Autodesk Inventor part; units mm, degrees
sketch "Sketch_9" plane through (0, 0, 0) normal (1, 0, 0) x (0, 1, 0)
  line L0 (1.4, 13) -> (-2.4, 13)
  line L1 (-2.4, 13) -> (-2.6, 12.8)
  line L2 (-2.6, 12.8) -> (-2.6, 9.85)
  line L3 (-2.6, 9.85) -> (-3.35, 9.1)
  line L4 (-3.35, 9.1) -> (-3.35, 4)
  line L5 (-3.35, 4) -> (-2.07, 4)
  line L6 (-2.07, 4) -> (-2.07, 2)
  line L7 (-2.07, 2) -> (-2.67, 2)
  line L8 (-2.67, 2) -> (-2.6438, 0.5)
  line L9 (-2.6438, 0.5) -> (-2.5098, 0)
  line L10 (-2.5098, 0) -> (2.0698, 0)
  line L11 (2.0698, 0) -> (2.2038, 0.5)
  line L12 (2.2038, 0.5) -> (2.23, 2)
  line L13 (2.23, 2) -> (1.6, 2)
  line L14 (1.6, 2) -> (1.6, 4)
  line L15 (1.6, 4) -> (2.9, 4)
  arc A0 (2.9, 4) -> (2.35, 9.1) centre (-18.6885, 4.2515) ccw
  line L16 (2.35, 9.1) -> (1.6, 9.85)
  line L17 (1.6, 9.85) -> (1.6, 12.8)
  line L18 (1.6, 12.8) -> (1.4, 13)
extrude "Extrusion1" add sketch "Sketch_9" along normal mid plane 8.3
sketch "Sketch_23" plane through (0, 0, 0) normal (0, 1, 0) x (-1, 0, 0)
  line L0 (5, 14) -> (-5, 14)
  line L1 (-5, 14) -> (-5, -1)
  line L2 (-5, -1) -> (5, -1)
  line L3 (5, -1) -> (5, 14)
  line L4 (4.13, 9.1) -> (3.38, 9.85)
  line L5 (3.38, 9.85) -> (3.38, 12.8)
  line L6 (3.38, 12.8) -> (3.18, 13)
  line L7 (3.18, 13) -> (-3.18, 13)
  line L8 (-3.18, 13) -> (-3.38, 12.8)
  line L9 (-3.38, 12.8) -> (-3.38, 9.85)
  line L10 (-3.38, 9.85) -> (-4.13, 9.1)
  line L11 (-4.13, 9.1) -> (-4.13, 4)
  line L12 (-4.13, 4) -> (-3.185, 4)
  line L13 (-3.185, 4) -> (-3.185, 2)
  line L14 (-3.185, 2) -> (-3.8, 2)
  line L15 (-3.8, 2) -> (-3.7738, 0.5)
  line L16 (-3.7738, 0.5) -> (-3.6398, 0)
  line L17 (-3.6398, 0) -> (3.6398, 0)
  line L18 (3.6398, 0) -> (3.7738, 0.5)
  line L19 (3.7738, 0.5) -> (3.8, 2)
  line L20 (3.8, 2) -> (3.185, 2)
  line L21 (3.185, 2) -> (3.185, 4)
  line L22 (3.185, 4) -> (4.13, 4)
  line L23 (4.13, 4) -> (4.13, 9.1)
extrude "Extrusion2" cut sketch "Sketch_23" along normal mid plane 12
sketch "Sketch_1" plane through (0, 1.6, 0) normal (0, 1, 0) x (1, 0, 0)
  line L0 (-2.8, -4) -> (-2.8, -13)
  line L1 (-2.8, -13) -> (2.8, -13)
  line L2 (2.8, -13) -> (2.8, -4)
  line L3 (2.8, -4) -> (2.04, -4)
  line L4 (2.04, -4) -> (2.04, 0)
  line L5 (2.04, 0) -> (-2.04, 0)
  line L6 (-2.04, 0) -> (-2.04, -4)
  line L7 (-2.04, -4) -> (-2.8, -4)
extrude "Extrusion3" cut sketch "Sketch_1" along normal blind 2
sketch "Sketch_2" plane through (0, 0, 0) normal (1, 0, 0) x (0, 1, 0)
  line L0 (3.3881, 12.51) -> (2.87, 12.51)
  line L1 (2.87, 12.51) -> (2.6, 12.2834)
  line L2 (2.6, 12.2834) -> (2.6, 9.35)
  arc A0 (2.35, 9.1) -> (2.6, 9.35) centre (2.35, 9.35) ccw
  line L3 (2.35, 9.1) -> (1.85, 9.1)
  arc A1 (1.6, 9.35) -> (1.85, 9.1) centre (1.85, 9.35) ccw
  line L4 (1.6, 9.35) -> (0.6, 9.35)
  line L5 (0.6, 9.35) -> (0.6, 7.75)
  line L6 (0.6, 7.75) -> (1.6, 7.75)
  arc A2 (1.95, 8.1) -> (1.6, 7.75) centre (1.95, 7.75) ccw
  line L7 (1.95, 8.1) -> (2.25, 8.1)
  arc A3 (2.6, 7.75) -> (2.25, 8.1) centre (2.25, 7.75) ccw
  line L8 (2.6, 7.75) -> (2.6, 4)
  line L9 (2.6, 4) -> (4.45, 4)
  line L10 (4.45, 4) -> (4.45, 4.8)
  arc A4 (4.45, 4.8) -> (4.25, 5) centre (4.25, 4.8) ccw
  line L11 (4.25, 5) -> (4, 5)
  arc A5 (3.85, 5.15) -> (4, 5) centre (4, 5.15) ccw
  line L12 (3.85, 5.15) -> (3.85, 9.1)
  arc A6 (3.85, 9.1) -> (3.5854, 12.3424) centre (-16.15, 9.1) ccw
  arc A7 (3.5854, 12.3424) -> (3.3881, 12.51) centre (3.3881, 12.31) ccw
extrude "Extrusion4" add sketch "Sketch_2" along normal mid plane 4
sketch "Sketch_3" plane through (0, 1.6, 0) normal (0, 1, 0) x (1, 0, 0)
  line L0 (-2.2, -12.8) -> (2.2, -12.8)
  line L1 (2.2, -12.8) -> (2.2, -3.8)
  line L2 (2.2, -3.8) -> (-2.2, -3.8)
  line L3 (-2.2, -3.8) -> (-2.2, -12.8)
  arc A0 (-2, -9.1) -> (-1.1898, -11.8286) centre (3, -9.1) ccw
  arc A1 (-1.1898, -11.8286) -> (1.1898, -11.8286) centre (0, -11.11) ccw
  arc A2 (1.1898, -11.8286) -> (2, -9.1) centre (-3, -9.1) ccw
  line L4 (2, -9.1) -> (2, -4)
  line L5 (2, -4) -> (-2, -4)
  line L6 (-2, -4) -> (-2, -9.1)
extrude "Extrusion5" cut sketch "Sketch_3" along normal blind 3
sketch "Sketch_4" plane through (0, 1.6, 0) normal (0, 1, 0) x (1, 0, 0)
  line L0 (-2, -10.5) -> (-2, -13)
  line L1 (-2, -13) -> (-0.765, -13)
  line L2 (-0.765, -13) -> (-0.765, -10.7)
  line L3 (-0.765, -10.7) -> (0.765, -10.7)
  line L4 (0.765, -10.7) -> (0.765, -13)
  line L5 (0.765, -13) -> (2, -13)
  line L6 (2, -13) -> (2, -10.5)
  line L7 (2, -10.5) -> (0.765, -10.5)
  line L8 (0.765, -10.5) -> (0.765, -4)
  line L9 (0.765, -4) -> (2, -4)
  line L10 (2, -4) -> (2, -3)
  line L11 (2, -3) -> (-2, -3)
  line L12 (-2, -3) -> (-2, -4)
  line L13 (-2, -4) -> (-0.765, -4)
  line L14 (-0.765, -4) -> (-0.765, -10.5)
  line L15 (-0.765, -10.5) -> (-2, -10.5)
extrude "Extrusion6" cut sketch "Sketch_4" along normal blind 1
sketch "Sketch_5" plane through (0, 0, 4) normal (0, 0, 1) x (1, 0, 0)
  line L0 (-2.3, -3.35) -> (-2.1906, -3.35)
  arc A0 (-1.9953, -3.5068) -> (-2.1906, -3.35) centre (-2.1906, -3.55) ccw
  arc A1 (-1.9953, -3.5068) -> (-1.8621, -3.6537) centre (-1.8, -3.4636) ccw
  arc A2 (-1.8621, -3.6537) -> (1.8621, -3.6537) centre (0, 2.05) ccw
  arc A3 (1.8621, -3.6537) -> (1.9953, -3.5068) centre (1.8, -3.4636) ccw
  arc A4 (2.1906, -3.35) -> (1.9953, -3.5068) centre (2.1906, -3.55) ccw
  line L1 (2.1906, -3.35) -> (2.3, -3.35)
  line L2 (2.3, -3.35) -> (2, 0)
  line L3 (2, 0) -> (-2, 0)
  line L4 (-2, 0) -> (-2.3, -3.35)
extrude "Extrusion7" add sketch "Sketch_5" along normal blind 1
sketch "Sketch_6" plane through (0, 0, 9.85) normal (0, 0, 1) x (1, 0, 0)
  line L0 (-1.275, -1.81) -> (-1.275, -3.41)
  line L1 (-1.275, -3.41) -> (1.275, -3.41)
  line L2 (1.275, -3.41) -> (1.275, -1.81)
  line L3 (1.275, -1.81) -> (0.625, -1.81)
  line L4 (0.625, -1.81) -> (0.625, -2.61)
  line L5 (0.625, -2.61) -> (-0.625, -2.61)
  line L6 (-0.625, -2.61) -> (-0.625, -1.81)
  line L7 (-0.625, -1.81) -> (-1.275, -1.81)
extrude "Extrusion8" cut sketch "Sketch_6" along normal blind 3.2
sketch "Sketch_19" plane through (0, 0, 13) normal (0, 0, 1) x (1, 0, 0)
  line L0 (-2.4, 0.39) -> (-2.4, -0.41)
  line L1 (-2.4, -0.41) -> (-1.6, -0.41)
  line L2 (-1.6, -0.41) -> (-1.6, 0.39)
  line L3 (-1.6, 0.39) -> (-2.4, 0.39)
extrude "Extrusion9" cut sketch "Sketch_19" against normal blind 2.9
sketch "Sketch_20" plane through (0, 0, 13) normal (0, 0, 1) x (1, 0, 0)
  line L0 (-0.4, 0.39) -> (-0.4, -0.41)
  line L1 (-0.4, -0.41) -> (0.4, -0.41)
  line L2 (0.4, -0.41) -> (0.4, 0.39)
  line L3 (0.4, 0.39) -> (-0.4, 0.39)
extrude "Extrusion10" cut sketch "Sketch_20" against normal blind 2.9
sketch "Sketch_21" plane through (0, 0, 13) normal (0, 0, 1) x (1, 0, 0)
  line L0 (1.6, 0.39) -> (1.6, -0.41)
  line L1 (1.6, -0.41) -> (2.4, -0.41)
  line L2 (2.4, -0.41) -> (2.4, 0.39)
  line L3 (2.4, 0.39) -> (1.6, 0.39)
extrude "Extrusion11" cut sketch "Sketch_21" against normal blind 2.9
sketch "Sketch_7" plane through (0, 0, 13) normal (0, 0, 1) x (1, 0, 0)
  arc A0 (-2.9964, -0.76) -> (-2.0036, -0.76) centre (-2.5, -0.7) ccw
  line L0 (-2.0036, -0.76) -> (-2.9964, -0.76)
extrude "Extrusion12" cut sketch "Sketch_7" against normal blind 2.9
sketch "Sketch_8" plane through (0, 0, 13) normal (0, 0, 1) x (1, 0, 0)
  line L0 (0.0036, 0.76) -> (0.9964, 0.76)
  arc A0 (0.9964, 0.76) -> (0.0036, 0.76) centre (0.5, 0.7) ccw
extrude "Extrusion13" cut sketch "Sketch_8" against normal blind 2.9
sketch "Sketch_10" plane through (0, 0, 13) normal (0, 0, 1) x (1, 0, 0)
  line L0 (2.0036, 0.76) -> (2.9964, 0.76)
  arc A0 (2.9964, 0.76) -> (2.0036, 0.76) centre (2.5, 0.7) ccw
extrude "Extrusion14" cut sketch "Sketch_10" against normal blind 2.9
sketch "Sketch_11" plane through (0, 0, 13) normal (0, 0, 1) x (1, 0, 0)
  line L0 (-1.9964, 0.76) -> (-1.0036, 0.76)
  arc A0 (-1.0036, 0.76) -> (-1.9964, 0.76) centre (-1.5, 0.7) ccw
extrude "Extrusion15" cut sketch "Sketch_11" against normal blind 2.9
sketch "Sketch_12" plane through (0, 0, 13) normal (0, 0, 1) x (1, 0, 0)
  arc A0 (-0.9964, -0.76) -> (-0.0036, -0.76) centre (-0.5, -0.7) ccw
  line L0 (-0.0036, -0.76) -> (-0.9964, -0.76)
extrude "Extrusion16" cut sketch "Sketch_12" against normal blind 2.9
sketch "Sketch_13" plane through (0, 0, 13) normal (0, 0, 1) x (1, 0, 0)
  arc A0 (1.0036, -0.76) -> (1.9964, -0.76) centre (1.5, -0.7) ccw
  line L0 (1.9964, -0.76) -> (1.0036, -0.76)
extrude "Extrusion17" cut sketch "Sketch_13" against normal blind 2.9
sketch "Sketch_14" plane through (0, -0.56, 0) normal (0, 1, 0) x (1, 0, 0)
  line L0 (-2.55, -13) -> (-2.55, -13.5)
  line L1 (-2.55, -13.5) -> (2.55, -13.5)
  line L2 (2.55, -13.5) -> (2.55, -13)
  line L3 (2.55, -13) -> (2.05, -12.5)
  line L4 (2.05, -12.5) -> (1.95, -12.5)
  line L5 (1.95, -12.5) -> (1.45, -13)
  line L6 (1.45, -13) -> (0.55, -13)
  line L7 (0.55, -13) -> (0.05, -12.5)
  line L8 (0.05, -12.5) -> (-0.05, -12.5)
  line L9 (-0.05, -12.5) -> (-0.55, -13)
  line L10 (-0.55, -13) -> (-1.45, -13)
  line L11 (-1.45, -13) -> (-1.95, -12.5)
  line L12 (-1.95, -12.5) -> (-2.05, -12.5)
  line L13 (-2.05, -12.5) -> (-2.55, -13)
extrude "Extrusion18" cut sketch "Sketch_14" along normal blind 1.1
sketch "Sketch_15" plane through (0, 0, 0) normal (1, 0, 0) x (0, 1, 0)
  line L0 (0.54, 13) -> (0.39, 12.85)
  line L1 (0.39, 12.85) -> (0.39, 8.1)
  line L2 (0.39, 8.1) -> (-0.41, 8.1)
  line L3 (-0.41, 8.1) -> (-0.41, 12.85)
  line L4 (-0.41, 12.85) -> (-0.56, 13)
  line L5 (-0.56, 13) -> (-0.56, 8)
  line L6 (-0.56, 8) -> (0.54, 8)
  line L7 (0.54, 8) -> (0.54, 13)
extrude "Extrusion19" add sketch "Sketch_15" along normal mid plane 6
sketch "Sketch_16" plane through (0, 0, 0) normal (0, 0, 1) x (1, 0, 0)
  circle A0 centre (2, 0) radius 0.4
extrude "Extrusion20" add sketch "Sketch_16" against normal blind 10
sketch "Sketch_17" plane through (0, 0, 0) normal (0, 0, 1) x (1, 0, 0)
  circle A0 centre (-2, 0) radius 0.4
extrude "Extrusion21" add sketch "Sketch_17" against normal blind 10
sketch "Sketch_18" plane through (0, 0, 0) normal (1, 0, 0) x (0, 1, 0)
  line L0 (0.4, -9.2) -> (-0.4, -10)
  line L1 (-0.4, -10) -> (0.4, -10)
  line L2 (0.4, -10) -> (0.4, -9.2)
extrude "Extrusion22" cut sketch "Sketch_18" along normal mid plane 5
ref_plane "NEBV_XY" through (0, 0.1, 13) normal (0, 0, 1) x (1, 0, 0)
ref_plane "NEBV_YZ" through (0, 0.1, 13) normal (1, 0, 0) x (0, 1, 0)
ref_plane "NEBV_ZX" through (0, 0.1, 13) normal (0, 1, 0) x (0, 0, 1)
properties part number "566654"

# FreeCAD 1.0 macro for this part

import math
import FreeCAD as App
import Part
import Sketcher

V = App.Vector
Q = App.Units.Quantity


def add_polygon(sketch, points):
    """Adds a closed chain of lines whose ends are joined by coincident constraints."""
    first, n = sketch.GeometryCount, len(points)
    for a, b in zip(points, points[1:] + points[:1]):
        sketch.addGeometry(Part.LineSegment(App.Vector(*a, 0), App.Vector(*b, 0)), False)
    for i in range(n):
        sketch.addConstraint(Sketcher.Constraint("Coincident", first + i, 2, first + (i + 1) % n, 1))

doc = App.newDocument("Part")
body = doc.addObject("PartDesign::Body", "Body")

# Sketch on YZ plane
sketch1 = body.newObject("Sketcher::SketchObject", "Sketch")
sketch1.AttachmentSupport = (doc.getObject("YZ_Plane"), [""])
sketch1.MapMode = "FlatFace"
sketch1.addGeometry([
    Part.LineSegment(V(1.6, 12.8, 0), V(1.4, 13, 0)),  # 0
    Part.LineSegment(V(1.4, 13, 0), V(-2.4, 13, 0)),  # 1
    Part.LineSegment(V(-2.4, 13, 0), V(-2.6, 12.8, 0)),  # 2
    Part.LineSegment(V(-2.6, 12.8, 0), V(-2.6, 9.85, 0)),  # 3
    Part.LineSegment(V(-2.6, 9.85, 0), V(-3.35, 9.1, 0)),  # 4
    Part.LineSegment(V(-3.35, 9.1, 0), V(-3.35, 4, 0)),  # 5
    Part.LineSegment(V(-3.35, 4, 0), V(-2.07, 4, 0)),  # 6
    Part.LineSegment(V(-2.07, 4, 0), V(-2.07, 2, 0)),  # 7
    Part.LineSegment(V(-2.07, 2, 0), V(-2.67, 2, 0)),  # 8
    Part.LineSegment(V(-2.67, 2, 0), V(-2.64, 0.5, 0)),  # 9
    Part.LineSegment(V(-2.64, 0.5, 0), V(-2.51, 0, 0)),  # 10
    Part.LineSegment(V(-2.51, 0, 0), V(2.07, 0, 0)),  # 11
    Part.LineSegment(V(2.07, 0, 0), V(2.2, 0.5, 0)),  # 12
    Part.LineSegment(V(2.2, 0.5, 0), V(2.23, 2, 0)),  # 13
    Part.LineSegment(V(2.23, 2, 0), V(1.6, 2, 0)),  # 14
    Part.LineSegment(V(1.6, 2, 0), V(1.6, 4, 0)),  # 15
    Part.LineSegment(V(1.6, 4, 0), V(2.9, 4, 0)),  # 16
    Part.ArcOfCircle(Part.Circle(V(-18.69, 4.25, 0), V(0, 0, 1), 21.59), math.radians(-0.67), math.radians(12.98)),  # 17
    Part.LineSegment(V(2.35, 9.1, 0), V(1.6, 9.85, 0)),  # 18
    Part.LineSegment(V(1.6, 9.85, 0), V(1.6, 12.8, 0)),  # 19
], False)
sketch1.addConstraint([
    Sketcher.Constraint("Coincident", 0, 2, 1, 1),
    Sketcher.Constraint("Coincident", 1, 2, 2, 1),
    Sketcher.Constraint("Coincident", 2, 2, 3, 1),
    Sketcher.Constraint("Coincident", 3, 2, 4, 1),
    Sketcher.Constraint("Coincident", 4, 2, 5, 1),
    Sketcher.Constraint("Coincident", 5, 2, 6, 1),
    Sketcher.Constraint("Coincident", 6, 2, 7, 1),
    Sketcher.Constraint("Coincident", 7, 2, 8, 1),
    Sketcher.Constraint("Coincident", 8, 2, 9, 1),
    Sketcher.Constraint("Coincident", 9, 2, 10, 1),
    Sketcher.Constraint("Coincident", 10, 2, 11, 1),
    Sketcher.Constraint("Coincident", 11, 2, 12, 1),
    Sketcher.Constraint("Coincident", 12, 2, 13, 1),
    Sketcher.Constraint("Coincident", 13, 2, 14, 1),
    Sketcher.Constraint("Coincident", 14, 2, 15, 1),
    Sketcher.Constraint("Coincident", 15, 2, 16, 1),
    Sketcher.Constraint("Coincident", 16, 2, 17, 1),
    Sketcher.Constraint("Coincident", 17, 2, 18, 1),
    Sketcher.Constraint("Coincident", 18, 2, 19, 1),
    Sketcher.Constraint("Coincident", 19, 2, 0, 1),
    Sketcher.Constraint("Horizontal", 1),
    Sketcher.Constraint("Vertical", 3),
    Sketcher.Constraint("Vertical", 5),
    Sketcher.Constraint("Horizontal", 6),
    Sketcher.Constraint("Vertical", 7),
    Sketcher.Constraint("Horizontal", 8),
    Sketcher.Constraint("Horizontal", 11),
    Sketcher.Constraint("Horizontal", 14),
    Sketcher.Constraint("Vertical", 15),
    Sketcher.Constraint("Horizontal", 16),
    Sketcher.Constraint("Vertical", 19),
    Sketcher.Constraint("PointOnObject", 10, 2, -1),
    Sketcher.Constraint("Perpendicular", 0, 2),
    Sketcher.Constraint("Parallel", 2, 4),
    Sketcher.Constraint("Perpendicular", 4, 18),
    Sketcher.Constraint("Horizontal", 9, 2, 12, 2),
    Sketcher.Constraint("Horizontal", 8, 2, 13, 2),
    Sketcher.Constraint("Horizontal", 6, 2, 15, 2),
    Sketcher.Constraint("Horizontal", 4, 2, 17, 2),
    Sketcher.Constraint("Horizontal", 3, 2, 18, 2),
    Sketcher.Constraint("Horizontal", 2, 2, 19, 2),
    Sketcher.Constraint("Vertical", 15, 2, 18, 2),
    Sketcher.Constraint("Equal", 0, 2),
    Sketcher.Constraint("Equal", 10, 12),
    Sketcher.Constraint("Equal", 9, 13),
    Sketcher.Constraint("DistanceY", 7, 2, 7, 1, 2.0),
    Sketcher.Constraint("Angle", 9, Q("-88.9993 deg")),
    Sketcher.Constraint("Radius", 17, 21.59),
    Sketcher.Constraint("DistanceX", 1, 2, 1, 1, 3.8),
    Sketcher.Constraint("DistanceX", 8, 2, 8, 1, 0.6),
    Sketcher.Constraint("DistanceX", 16, 1, 16, 2, 1.3),
    Sketcher.Constraint("DistanceY", 5, 2, 5, 1, 5.1),
    Sketcher.Constraint("DistanceY", -1, 1, 0, 2, 13.0),
    Sketcher.Constraint("DistanceY", -1, 1, 5, 2, 4.0),
    Sketcher.Constraint("DistanceX", 2, 2, 0, 2, 4.0),
    Sketcher.Constraint("DistanceX", 6, 1, 6, 2, 1.28),
    Sketcher.Constraint("DistanceX", 14, 2, 14, 1, 0.63),
    Sketcher.Constraint("DistanceY", 3, 2, 3, 1, 2.95),
    Sketcher.Constraint("DistanceX", -1, 1, 0, 2, 1.4),
    Sketcher.Constraint("DistanceY", -1, 1, 9, 2, 0.5),
    Sketcher.Constraint("DistanceX", 11, 1, 11, 2, 4.5796),
])
pad1 = body.newObject("PartDesign::Pad", "Pad")
pad1.Profile = sketch1
pad1.Length = 8.3
pad1.Midplane = True

# Sketch on XZ plane
sketch2 = body.newObject("Sketcher::SketchObject", "Sketch001")
sketch2.AttachmentSupport = (doc.getObject("XZ_Plane"), [""])
sketch2.MapMode = "FlatFace"
add_polygon(sketch2, [(-5, -1), (-5, 14), (5, 14), (5, -1)])  # lines 0-3
add_polygon(sketch2, [(-3.38, 9.85), (-4.13, 9.1), (-4.13, 4), (-3.19, 4), (-3.19, 2), (-3.8, 2), (-3.77, 0.5), (-3.64, 0), (3.64, 0), (3.77, 0.5), (3.8, 2), (3.19, 2), (3.19, 4), (4.13, 4), (4.13, 9.1), (3.38, 9.85), (3.38, 12.8), (3.18, 13), (-3.18, 13), (-3.38, 12.8)])  # lines 4-23
sketch2.addConstraint([
    Sketcher.Constraint("Vertical", 0),
    Sketcher.Constraint("Horizontal", 1),
    Sketcher.Constraint("Vertical", 2),
    Sketcher.Constraint("Horizontal", 3),
    Sketcher.Constraint("Vertical", 5),
    Sketcher.Constraint("Horizontal", 6),
    Sketcher.Constraint("Vertical", 7),
    Sketcher.Constraint("Horizontal", 8),
    Sketcher.Constraint("Horizontal", 11),
    Sketcher.Constraint("Horizontal", 14),
    Sketcher.Constraint("Vertical", 15),
    Sketcher.Constraint("Horizontal", 16),
    Sketcher.Constraint("Vertical", 17),
    Sketcher.Constraint("Vertical", 19),
    Sketcher.Constraint("Horizontal", 21),
    Sketcher.Constraint("Vertical", 23),
    Sketcher.Constraint("Symmetric", 10, 2, 11, 2, -1, 1),
    Sketcher.Constraint("Symmetric", 9, 2, 12, 2, -2),
    Sketcher.Constraint("Symmetric", 8, 2, 13, 2, -2),
    Sketcher.Constraint("Symmetric", 6, 2, 15, 2, -2),
    Sketcher.Constraint("Symmetric", 4, 2, 17, 2, -2),
    Sketcher.Constraint("Symmetric", 19, 2, 22, 2, -2),
    Sketcher.Constraint("Perpendicular", 4, 18),
    Sketcher.Constraint("Parallel", 18, 20),
    Sketcher.Constraint("Perpendicular", 20, 22),
    Sketcher.Constraint("Horizontal", 18, 2, 23, 2),
    Sketcher.Constraint("DistanceX", 1, 1, 1, 2, 10.0),
    Sketcher.Constraint("DistanceY", 0, 1, 0, 2, 15.0),
    Sketcher.Constraint("DistanceY", 7, 2, 7, 1, 2.0),
    Sketcher.Constraint("Angle", 9, Q("-88.9993 deg")),
    Sketcher.Constraint("DistanceY", 5, 2, 5, 1, 5.1),
    Sketcher.Constraint("DistanceX", 0, 2, -1, 1, 5.0),
    Sketcher.Constraint("DistanceY", -1, 1, 0, 2, 14.0),
    Sketcher.Constraint("DistanceY", -1, 1, 5, 2, 4.0),
    Sketcher.Constraint("DistanceY", -1, 1, 20, 2, 13.0),
    Sketcher.Constraint("DistanceX", 21, 2, 21, 1, 6.36),
    Sketcher.Constraint("DistanceY", 19, 1, 19, 2, 2.95),
    Sketcher.Constraint("DistanceX", 8, 2, -1, 1, 3.8),
    Sketcher.Constraint("DistanceY", -1, 1, 9, 2, 0.5),
    Sketcher.Constraint("DistanceY", -1, 1, 19, 2, 12.8),
    Sketcher.Constraint("DistanceX", 6, 1, 6, 2, 0.945),
    Sketcher.Constraint("DistanceX", 11, 1, 11, 2, 7.2796),
])
pocket1 = body.newObject("PartDesign::Pocket", "Pocket")
pocket1.Profile = sketch2
pocket1.Length = 12
pocket1.Midplane = True

# Sketch on XZ plane
sketch3 = body.newObject("Sketcher::SketchObject", "Sketch002")
sketch3.AttachmentSupport = (doc.getObject("XZ_Plane"), [""])
sketch3.MapMode = "FlatFace"
sketch3.AttachmentOffset = App.Placement(V(0, 0, -1.6), App.Rotation())
add_polygon(sketch3, [(-2, 4), (-2.8, 4), (-2.8, 13), (2.8, 13), (2.8, 4), (2, 4), (2, 0), (-2, 0)])  # lines 0-7
sketch3.addConstraint([
    Sketcher.Constraint("Horizontal", 0),
    Sketcher.Constraint("Vertical", 1),
    Sketcher.Constraint("Horizontal", 2),
    Sketcher.Constraint("Vertical", 3),
    Sketcher.Constraint("Horizontal", 4),
    Sketcher.Constraint("Vertical", 5),
    Sketcher.Constraint("Horizontal", 6),
    Sketcher.Constraint("Vertical", 7),
    Sketcher.Constraint("Symmetric", 5, 2, 6, 2, -1, 1),
    Sketcher.Constraint("Symmetric", 0, 2, 3, 2, -2),
    Sketcher.Constraint("DistanceY", 1, 1, 1, 2, 9.0),
    Sketcher.Constraint("DistanceY", 5, 2, 5, 1, 4.0),
    Sketcher.Constraint("DistanceX", 2, 1, 2, 2, 5.6),
    Sketcher.Constraint("DistanceX", 0, 2, 0, 1, 0.76),
])
pocket2 = body.newObject("PartDesign::Pocket", "Pocket001")
pocket2.Profile = sketch3
pocket2.Length = 2

# Sketch on YZ plane
sketch4 = body.newObject("Sketcher::SketchObject", "Sketch003")
sketch4.AttachmentSupport = (doc.getObject("YZ_Plane"), [""])
sketch4.MapMode = "FlatFace"
sketch4.addGeometry([
    Part.ArcOfCircle(Part.Circle(V(3.39, 12.31, 0), V(0, 0, 1), 0.2), math.radians(9), math.radians(90)),  # 0
    Part.LineSegment(V(3.39, 12.51, 0), V(2.87, 12.51, 0)),  # 1
    Part.LineSegment(V(2.87, 12.51, 0), V(2.6, 12.28, 0)),  # 2
    Part.LineSegment(V(2.6, 12.28, 0), V(2.6, 9.35, 0)),  # 3
    Part.ArcOfCircle(Part.Circle(V(2.35, 9.35, 0), V(0, 0, 1), 0.25), math.radians(-90), math.radians(0)),  # 4
    Part.LineSegment(V(2.35, 9.1, 0), V(1.85, 9.1, 0)),  # 5
    Part.ArcOfCircle(Part.Circle(V(1.85, 9.35, 0), V(0, 0, 1), 0.25), math.radians(180), math.radians(270)),  # 6
    Part.LineSegment(V(1.6, 9.35, 0), V(0.6, 9.35, 0)),  # 7
    Part.LineSegment(V(0.6, 9.35, 0), V(0.6, 7.75, 0)),  # 8
    Part.LineSegment(V(0.6, 7.75, 0), V(1.6, 7.75, 0)),  # 9
    Part.ArcOfCircle(Part.Circle(V(1.95, 7.75, 0), V(0, 0, 1), 0.35), math.radians(90), math.radians(180)),  # 10
    Part.LineSegment(V(1.95, 8.1, 0), V(2.25, 8.1, 0)),  # 11
    Part.ArcOfCircle(Part.Circle(V(2.25, 7.75, 0), V(0, 0, 1), 0.35), math.radians(0), math.radians(90)),  # 12
    Part.LineSegment(V(2.6, 7.75, 0), V(2.6, 4, 0)),  # 13
    Part.LineSegment(V(2.6, 4, 0), V(4.45, 4, 0)),  # 14
    Part.LineSegment(V(4.45, 4, 0), V(4.45, 4.8, 0)),  # 15
    Part.ArcOfCircle(Part.Circle(V(4.25, 4.8, 0), V(0, 0, 1), 0.2), math.radians(0), math.radians(90)),  # 16
    Part.LineSegment(V(4.25, 5, 0), V(4, 5, 0)),  # 17
    Part.ArcOfCircle(Part.Circle(V(4, 5.15, 0), V(0, 0, 1), 0.15), math.radians(180), math.radians(270)),  # 18
    Part.LineSegment(V(3.85, 5.15, 0), V(3.85, 9.1, 0)),  # 19
    Part.ArcOfCircle(Part.Circle(V(-16.15, 9.1, 0), V(0, 0, 1), 20), math.radians(0), math.radians(9.33)),  # 20
], False)
sketch4.addConstraint([
    Sketcher.Constraint("Tangent", 0, 2, 1, 1),
    Sketcher.Constraint("Coincident", 1, 2, 2, 1),
    Sketcher.Constraint("Coincident", 2, 2, 3, 1),
    Sketcher.Constraint("Tangent", 3, 2, 4, 2),
    Sketcher.Constraint("Tangent", 4, 1, 5, 1),
    Sketcher.Constraint("Tangent", 5, 2, 6, 2),
    Sketcher.Constraint("Coincident", 6, 1, 7, 1),
    Sketcher.Constraint("Coincident", 7, 2, 8, 1),
    Sketcher.Constraint("Coincident", 8, 2, 9, 1),
    Sketcher.Constraint("Coincident", 9, 2, 10, 2),
    Sketcher.Constraint("Tangent", 10, 1, 11, 1),
    Sketcher.Constraint("Tangent", 11, 2, 12, 2),
    Sketcher.Constraint("Tangent", 12, 1, 13, 1),
    Sketcher.Constraint("Coincident", 13, 2, 14, 1),
    Sketcher.Constraint("Coincident", 14, 2, 15, 1),
    Sketcher.Constraint("Tangent", 15, 2, 16, 1),
    Sketcher.Constraint("Tangent", 16, 2, 17, 1),
    Sketcher.Constraint("Tangent", 17, 2, 18, 2),
    Sketcher.Constraint("Tangent", 18, 1, 19, 1),
    Sketcher.Constraint("Tangent", 19, 2, 20, 1),
    Sketcher.Constraint("Tangent", 20, 2, 0, 1),
    Sketcher.Constraint("Horizontal", 1),
    Sketcher.Constraint("Vertical", 3),
    Sketcher.Constraint("Horizontal", 5),
    Sketcher.Constraint("Horizontal", 7),
    Sketcher.Constraint("Vertical", 8),
    Sketcher.Constraint("Horizontal", 9),
    Sketcher.Constraint("Horizontal", 11),
    Sketcher.Constraint("Vertical", 13),
    Sketcher.Constraint("Horizontal", 14),
    Sketcher.Constraint("Vertical", 15),
    Sketcher.Constraint("Horizontal", 17),
    Sketcher.Constraint("Vertical", 19),
    Sketcher.Constraint("Equal", 4, 6),
    Sketcher.Constraint("Equal", 10, 12),
    Sketcher.Constraint("Equal", 0, 16),
    Sketcher.Constraint("Horizontal", 20, 3, 4, 1),
    Sketcher.Constraint("Horizontal", 3, 2, 6, 1),
    Sketcher.Constraint("Horizontal", 12, 3, 8, 2),
    Sketcher.Constraint("Vertical", 6, 1, 9, 2),
    Sketcher.Constraint("Vertical", 3, 2, 12, 1),
    Sketcher.Constraint("Radius", 0, 0.2),
    Sketcher.Constraint("DistanceX", 7, 2, 7, 1, 1.0),
    Sketcher.Constraint("Radius", 4, 0.25),
    Sketcher.Constraint("Radius", 10, 0.35),
    Sketcher.Constraint("Radius", 18, 0.15),
    Sketcher.Constraint("DistanceX", 5, 2, 5, 1, 0.5),
    Sketcher.Constraint("DistanceY", 8, 2, 8, 1, 1.6),
    Sketcher.Constraint("DistanceY", 15, 1, 15, 2, 0.8),
    Sketcher.Constraint("DistanceX", -1, 1, 18, 3, 4.0),
    Sketcher.Constraint("DistanceY", -1, 1, 13, 2, 4.0),
    Sketcher.Constraint("DistanceX", 12, 3, 16, 3, 2.0),
    Sketcher.Constraint("DistanceX", 17, 2, 17, 1, 0.25),
    Sketcher.Constraint("DistanceY", 13, 2, 13, 1, 3.75),
    Sketcher.Constraint("Radius", 20, 19.9969),
    Sketcher.Constraint("DistanceX", 1, 2, 1, 1, 0.518),
    Sketcher.Constraint("DistanceY", -1, 1, 0, 3, 12.31),
    Sketcher.Constraint("DistanceY", 3, 2, 3, 1, 2.9334),
])
pad2 = body.newObject("PartDesign::Pad", "Pad001")
pad2.Profile = sketch4
pad2.Length = 4
pad2.Midplane = True

# Sketch on XZ plane
sketch5 = body.newObject("Sketcher::SketchObject", "Sketch004")
sketch5.AttachmentSupport = (doc.getObject("XZ_Plane"), [""])
sketch5.MapMode = "FlatFace"
sketch5.AttachmentOffset = App.Placement(V(0, 0, -1.6), App.Rotation())
add_polygon(sketch5, [(-2.2, 3.8), (-2.2, 12.8), (2.2, 12.8), (2.2, 3.8)])  # lines 0-3
sketch5.addGeometry(Part.ArcOfCircle(Part.Circle(V(3, 9.1, 0), V(0, 0, 1), 5), math.radians(147), math.radians(180)), False)  # 4
sketch5.addGeometry(Part.LineSegment(V(-2, 9.1, 0), V(-2, 4, 0)), False)  # 5
sketch5.addGeometry(Part.LineSegment(V(-2, 4, 0), V(2, 4, 0)), False)  # 6
sketch5.addGeometry(Part.LineSegment(V(2, 4, 0), V(2, 9.1, 0)), False)  # 7
sketch5.addGeometry(Part.ArcOfCircle(Part.Circle(V(-3, 9.1, 0), V(0, 0, 1), 5), math.radians(0), math.radians(33)), False)  # 8
sketch5.addGeometry(Part.ArcOfCircle(Part.Circle(V(0, 11.1, 0), V(0, 0, 1), 1.4), math.radians(31), math.radians(149)), False)  # 9
sketch5.addConstraint([
    Sketcher.Constraint("Tangent", 4, 2, 5, 1),
    Sketcher.Constraint("Coincident", 5, 2, 6, 1),
    Sketcher.Constraint("Coincident", 6, 2, 7, 1),
    Sketcher.Constraint("Tangent", 7, 2, 8, 1),
    Sketcher.Constraint("Coincident", 8, 2, 9, 1),
    Sketcher.Constraint("Coincident", 9, 2, 4, 1),
    Sketcher.Constraint("Vertical", 0),
    Sketcher.Constraint("Horizontal", 1),
    Sketcher.Constraint("Vertical", 2),
    Sketcher.Constraint("Horizontal", 3),
    Sketcher.Constraint("Vertical", 5),
    Sketcher.Constraint("Horizontal", 6),
    Sketcher.Constraint("Vertical", 7),
    Sketcher.Constraint("Equal", 4, 8),
    Sketcher.Constraint("Symmetric", 4, 3, 8, 3, -2),
    Sketcher.Constraint("PointOnObject", 9, 3, -2),
    Sketcher.Constraint("Radius", 4, 5.0),
    Sketcher.Constraint("DistanceX", 6, 1, 6, 2, 4.0),
    Sketcher.Constraint("DistanceY", 0, 1, 0, 2, 9.0),
    Sketcher.Constraint("Radius", 9, 1.39),
    Sketcher.Constraint("DistanceX", 1, 1, 1, 2, 4.4),
    Sketcher.Constraint("DistanceY", 5, 2, 5, 1, 5.1),
    Sketcher.Constraint("DistanceY", -1, 1, 5, 2, 4.0),
    Sketcher.Constraint("DistanceX", 0, 2, -1, 1, 2.2),
    Sketcher.Constraint("DistanceY", -1, 1, 0, 2, 12.8),
    Sketcher.Constraint("DistanceY", -1, 1, 9, 3, 11.11),
])
pocket3 = body.newObject("PartDesign::Pocket", "Pocket002")
pocket3.Profile = sketch5
pocket3.Length = 3

# Sketch on XZ plane
sketch6 = body.newObject("Sketcher::SketchObject", "Sketch005")
sketch6.AttachmentSupport = (doc.getObject("XZ_Plane"), [""])
sketch6.MapMode = "FlatFace"
sketch6.AttachmentOffset = App.Placement(V(0, 0, -1.6), App.Rotation())
add_polygon(sketch6, [(-0.8, 10.5), (-2, 10.5), (-2, 13), (-0.8, 13), (-0.8, 10.7), (0.8, 10.7), (0.8, 13), (2, 13), (2, 10.5), (0.8, 10.5), (0.8, 4), (2, 4), (2, 3), (-2, 3), (-2, 4), (-0.8, 4)])  # lines 0-15
sketch6.addConstraint([
    Sketcher.Constraint("Horizontal", 0),
    Sketcher.Constraint("Vertical", 1),
    Sketcher.Constraint("Horizontal", 2),
    Sketcher.Constraint("Vertical", 3),
    Sketcher.Constraint("Horizontal", 4),
    Sketcher.Constraint("Vertical", 5),
    Sketcher.Constraint("Horizontal", 6),
    Sketcher.Constraint("Vertical", 7),
    Sketcher.Constraint("Horizontal", 8),
    Sketcher.Constraint("Vertical", 9),
    Sketcher.Constraint("Horizontal", 10),
    Sketcher.Constraint("Vertical", 11),
    Sketcher.Constraint("Horizontal", 12),
    Sketcher.Constraint("Vertical", 13),
    Sketcher.Constraint("Horizontal", 14),
    Sketcher.Constraint("Vertical", 15),
    Sketcher.Constraint("Symmetric", 2, 2, 5, 2, -2),
    Sketcher.Constraint("Symmetric", 0, 2, 7, 2, -2),
    Sketcher.Constraint("Symmetric", 10, 2, 13, 2, -2),
    Sketcher.Constraint("Vertical", 5, 2, 8, 2),
    Sketcher.Constraint("Vertical", 7, 2, 10, 2),
    Sketcher.Constraint("Vertical", 3, 2, 14, 2),
    Sketcher.Constraint("DistanceX", 12, 2, 12, 1, 4.0),
    Sketcher.Constraint("DistanceY", 11, 2, 11, 1, 1.0),
    Sketcher.Constraint("DistanceY", 1, 1, 1, 2, 2.5),
    Sketcher.Constraint("DistanceY", 3, 2, 3, 1, 2.3),
    Sketcher.Constraint("DistanceY", 9, 2, 9, 1, 6.5),
    Sketcher.Constraint("DistanceY", -1, 1, 1, 2, 13.0),
    Sketcher.Constraint("DistanceX", 4, 1, 4, 2, 1.53),
])
pocket4 = body.newObject("PartDesign::Pocket", "Pocket003")
pocket4.Profile = sketch6
pocket4.Length = 1

# Sketch on XY plane
sketch7 = body.newObject("Sketcher::SketchObject", "Sketch006")
sketch7.AttachmentSupport = (doc.getObject("XY_Plane"), [""])
sketch7.MapMode = "FlatFace"
sketch7.AttachmentOffset = App.Placement(V(0, 0, 4), App.Rotation())
sketch7.addGeometry([
    Part.LineSegment(V(-2, 0, 0), V(-2.3, -3.35, 0)),  # 0
    Part.LineSegment(V(-2.3, -3.35, 0), V(-2.19, -3.35, 0)),  # 1
    Part.ArcOfCircle(Part.Circle(V(-2.19, -3.55, 0), V(0, 0, 1), 0.2), math.radians(12), math.radians(90)),  # 2
    Part.ArcOfCircle(Part.Circle(V(-1.8, -3.46, 0), V(0, 0, 1), 0.2), math.radians(-168), math.radians(-108)),  # 3
    Part.ArcOfCircle(Part.Circle(V(0, 2.05, 0), V(0, 0, 1), 6), math.radians(-108), math.radians(-72)),  # 4
    Part.ArcOfCircle(Part.Circle(V(1.8, -3.46, 0), V(0, 0, 1), 0.2), math.radians(-72), math.radians(-12)),  # 5
    Part.ArcOfCircle(Part.Circle(V(2.19, -3.55, 0), V(0, 0, 1), 0.2), math.radians(90), math.radians(168)),  # 6
    Part.LineSegment(V(2.19, -3.35, 0), V(2.3, -3.35, 0)),  # 7
    Part.LineSegment(V(2.3, -3.35, 0), V(2, 0, 0)),  # 8
    Part.LineSegment(V(2, 0, 0), V(-2, 0, 0)),  # 9
], False)
sketch7.addConstraint([
    Sketcher.Constraint("Coincident", 0, 2, 1, 1),
    Sketcher.Constraint("Tangent", 1, 2, 2, 2),
    Sketcher.Constraint("Tangent", 2, 1, 3, 1),
    Sketcher.Constraint("Tangent", 3, 2, 4, 1),
    Sketcher.Constraint("Tangent", 4, 2, 5, 1),
    Sketcher.Constraint("Tangent", 5, 2, 6, 2),
    Sketcher.Constraint("Tangent", 6, 1, 7, 1),
    Sketcher.Constraint("Coincident", 7, 2, 8, 1),
    Sketcher.Constraint("Coincident", 8, 2, 9, 1),
    Sketcher.Constraint("Coincident", 9, 2, 0, 1),
    Sketcher.Constraint("Horizontal", 1),
    Sketcher.Constraint("Horizontal", 7),
    Sketcher.Constraint("Horizontal", 9),
    Sketcher.Constraint("Equal", 2, 3),
    Sketcher.Constraint("Equal", 3, 5),
    Sketcher.Constraint("Equal", 5, 6),
    Sketcher.Constraint("Symmetric", 8, 2, 9, 2, -1, 1),
    Sketcher.Constraint("Symmetric", 3, 3, 5, 3, -2),
    Sketcher.Constraint("Symmetric", 0, 2, 7, 2, -2),
    Sketcher.Constraint("Radius", 4, 6.0),
    Sketcher.Constraint("Radius", 2, 0.2),
    Sketcher.Constraint("DistanceX", 9, 2, 9, 1, 4.0),
    Sketcher.Constraint("DistanceX", 3, 3, -1, 1, 1.8),
    Sketcher.Constraint("DistanceX", 0, 2, -1, 1, 2.3),
    Sketcher.Constraint("DistanceY", 2, 3, 4, 3, 5.6),
    Sketcher.Constraint("DistanceY", 2, 3, -1, 1, 3.55),
])
pad3 = body.newObject("PartDesign::Pad", "Pad002")
pad3.Profile = sketch7
pad3.Length = 1

# Sketch on XY plane
sketch8 = body.newObject("Sketcher::SketchObject", "Sketch007")
sketch8.AttachmentSupport = (doc.getObject("XY_Plane"), [""])
sketch8.MapMode = "FlatFace"
sketch8.AttachmentOffset = App.Placement(V(0, 0, 9.85), App.Rotation())
add_polygon(sketch8, [(-0.6, -1.8), (-1.3, -1.8), (-1.3, -3.4), (1.3, -3.4), (1.3, -1.8), (0.6, -1.8), (0.6, -2.6), (-0.6, -2.6)])  # lines 0-7
sketch8.addConstraint([
    Sketcher.Constraint("Horizontal", 0),
    Sketcher.Constraint("Vertical", 1),
    Sketcher.Constraint("Horizontal", 2),
    Sketcher.Constraint("Vertical", 3),
    Sketcher.Constraint("Horizontal", 4),
    Sketcher.Constraint("Vertical", 5),
    Sketcher.Constraint("Horizontal", 6),
    Sketcher.Constraint("Vertical", 7),
    Sketcher.Constraint("Symmetric", 0, 2, 3, 2, -2),
    Sketcher.Constraint("Equal", 0, 4),
    Sketcher.Constraint("DistanceY", 1, 2, 1, 1, 1.6),
    Sketcher.Constraint("DistanceY", 5, 2, 5, 1, 0.8),
    Sketcher.Constraint("DistanceX", 0, 2, 0, 1, 0.65),
    Sketcher.Constraint("DistanceX", 2, 1, 2, 2, 2.55),
    Sketcher.Constraint("DistanceY", 0, 2, -1, 1, 1.81),
])
pocket5 = body.newObject("PartDesign::Pocket", "Pocket004")
pocket5.Profile = sketch8
pocket5.Length = 3.2
pocket5.Reversed = True

# Sketch on XY plane
sketch9 = body.newObject("Sketcher::SketchObject", "Sketch008")
sketch9.AttachmentSupport = (doc.getObject("XY_Plane"), [""])
sketch9.MapMode = "FlatFace"
sketch9.AttachmentOffset = App.Placement(V(0, 0, 13), App.Rotation())
add_polygon(sketch9, [(-1.6, 0.4), (-2.4, 0.4), (-2.4, -0.4), (-1.6, -0.4)])  # lines 0-3
sketch9.addConstraint([
    Sketcher.Constraint("Horizontal", 0),
    Sketcher.Constraint("Vertical", 1),
    Sketcher.Constraint("Horizontal", 2),
    Sketcher.Constraint("Vertical", 3),
    Sketcher.Constraint("Equal", 2, 1),
    Sketcher.Constraint("DistanceX", 0, 2, 0, 1, 0.8),
    Sketcher.Constraint("DistanceX", 0, 2, -1, 1, 2.4),
    Sketcher.Constraint("DistanceY", -1, 1, 0, 2, 0.39),
])
pocket6 = body.newObject("PartDesign::Pocket", "Pocket005")
pocket6.Profile = sketch9
pocket6.Length = 2.9

# Sketch on XY plane
sketch10 = body.newObject("Sketcher::SketchObject", "Sketch009")
sketch10.AttachmentSupport = (doc.getObject("XY_Plane"), [""])
sketch10.MapMode = "FlatFace"
sketch10.AttachmentOffset = App.Placement(V(0, 0, 13), App.Rotation())
add_polygon(sketch10, [(0.4, 0.4), (-0.4, 0.4), (-0.4, -0.4), (0.4, -0.4)])  # lines 0-3
sketch10.addConstraint([
    Sketcher.Constraint("Horizontal", 0),
    Sketcher.Constraint("Vertical", 1),
    Sketcher.Constraint("Horizontal", 2),
    Sketcher.Constraint("Vertical", 3),
    Sketcher.Constraint("Equal", 2, 1),
    Sketcher.Constraint("DistanceX", 0, 2, 0, 1, 0.8),
    Sketcher.Constraint("DistanceX", 0, 2, -1, 1, 0.4),
    Sketcher.Constraint("DistanceY", -1, 1, 0, 2, 0.39),
])
pocket7 = body.newObject("PartDesign::Pocket", "Pocket006")
pocket7.Profile = sketch10
pocket7.Length = 2.9

# Sketch on XY plane
sketch11 = body.newObject("Sketcher::SketchObject", "Sketch010")
sketch11.AttachmentSupport = (doc.getObject("XY_Plane"), [""])
sketch11.MapMode = "FlatFace"
sketch11.AttachmentOffset = App.Placement(V(0, 0, 13), App.Rotation())
add_polygon(sketch11, [(2.4, 0.4), (1.6, 0.4), (1.6, -0.4), (2.4, -0.4)])  # lines 0-3
sketch11.addConstraint([
    Sketcher.Constraint("Horizontal", 0),
    Sketcher.Constraint("Vertical", 1),
    Sketcher.Constraint("Horizontal", 2),
    Sketcher.Constraint("Vertical", 3),
    Sketcher.Constraint("Equal", 2, 1),
    Sketcher.Constraint("DistanceX", 0, 2, 0, 1, 0.8),
    Sketcher.Constraint("DistanceX", -1, 1, 0, 2, 1.6),
    Sketcher.Constraint("DistanceY", -1, 1, 0, 2, 0.39),
])
pocket8 = body.newObject("PartDesign::Pocket", "Pocket007")
pocket8.Profile = sketch11
pocket8.Length = 2.9

# Sketch on XY plane
sketch12 = body.newObject("Sketcher::SketchObject", "Sketch011")
sketch12.AttachmentSupport = (doc.getObject("XY_Plane"), [""])
sketch12.MapMode = "FlatFace"
sketch12.AttachmentOffset = App.Placement(V(0, 0, 13), App.Rotation())
sketch12.addGeometry([
    Part.LineSegment(V(-2, -0.8, 0), V(-3, -0.8, 0)),
    Part.ArcOfCircle(Part.Circle(V(-2.5, -0.7, 0), V(0, 0, 1), 0.5), math.radians(-173), math.radians(-7)),
], False)
sketch12.addConstraint([
    Sketcher.Constraint("Coincident", 0, 1, 1, 2),
    Sketcher.Constraint("Coincident", 1, 1, 0, 2),
    Sketcher.Constraint("Horizontal", 0),
    Sketcher.Constraint("Radius", 1, 0.5),
    Sketcher.Constraint("DistanceX", 1, 3, -1, 1, 2.5),
    Sketcher.Constraint("DistanceY", 1, 3, -1, 1, 0.7),
    Sketcher.Constraint("DistanceY", 0, 1, -1, 1, 0.76),
])
pocket9 = body.newObject("PartDesign::Pocket", "Pocket008")
pocket9.Profile = sketch12
pocket9.Length = 2.9

# Sketch on XY plane
sketch13 = body.newObject("Sketcher::SketchObject", "Sketch012")
sketch13.AttachmentSupport = (doc.getObject("XY_Plane"), [""])
sketch13.MapMode = "FlatFace"
sketch13.AttachmentOffset = App.Placement(V(0, 0, 13), App.Rotation())
sketch13.addGeometry([
    Part.ArcOfCircle(Part.Circle(V(0.5, 0.7, 0), V(0, 0, 1), 0.5), math.radians(7), math.radians(173)),
    Part.LineSegment(V(0, 0.8, 0), V(1, 0.8, 0)),
], False)
sketch13.addConstraint([
    Sketcher.Constraint("Coincident", 0, 1, 1, 2),
    Sketcher.Constraint("Coincident", 1, 1, 0, 2),
    Sketcher.Constraint("Horizontal", 1),
    Sketcher.Constraint("Radius", 0, 0.5),
    Sketcher.Constraint("DistanceX", -1, 1, 0, 3, 0.5),
    Sketcher.Constraint("DistanceY", -1, 1, 0, 3, 0.7),
    Sketcher.Constraint("DistanceY", -1, 1, 0, 1, 0.76),
])
pocket10 = body.newObject("PartDesign::Pocket", "Pocket009")
pocket10.Profile = sketch13
pocket10.Length = 2.9

# Sketch on XY plane
sketch14 = body.newObject("Sketcher::SketchObject", "Sketch013")
sketch14.AttachmentSupport = (doc.getObject("XY_Plane"), [""])
sketch14.MapMode = "FlatFace"
sketch14.AttachmentOffset = App.Placement(V(0, 0, 13), App.Rotation())
sketch14.addGeometry([
    Part.ArcOfCircle(Part.Circle(V(2.5, 0.7, 0), V(0, 0, 1), 0.5), math.radians(7), math.radians(173)),
    Part.LineSegment(V(2, 0.8, 0), V(3, 0.8, 0)),
], False)
sketch14.addConstraint([
    Sketcher.Constraint("Coincident", 0, 1, 1, 2),
    Sketcher.Constraint("Coincident", 1, 1, 0, 2),
    Sketcher.Constraint("Horizontal", 1),
    Sketcher.Constraint("Radius", 0, 0.5),
    Sketcher.Constraint("DistanceX", -1, 1, 0, 3, 2.5),
    Sketcher.Constraint("DistanceY", -1, 1, 0, 3, 0.7),
    Sketcher.Constraint("DistanceY", -1, 1, 0, 1, 0.76),
])
pocket11 = body.newObject("PartDesign::Pocket", "Pocket010")
pocket11.Profile = sketch14
pocket11.Length = 2.9

# Sketch on XY plane
sketch15 = body.newObject("Sketcher::SketchObject", "Sketch014")
sketch15.AttachmentSupport = (doc.getObject("XY_Plane"), [""])
sketch15.MapMode = "FlatFace"
sketch15.AttachmentOffset = App.Placement(V(0, 0, 13), App.Rotation())
sketch15.addGeometry([
    Part.ArcOfCircle(Part.Circle(V(-1.5, 0.7, 0), V(0, 0, 1), 0.5), math.radians(7), math.radians(173)),
    Part.LineSegment(V(-2, 0.8, 0), V(-1, 0.8, 0)),
], False)
sketch15.addConstraint([
    Sketcher.Constraint("Coincident", 0, 1, 1, 2),
    Sketcher.Constraint("Coincident", 1, 1, 0, 2),
    Sketcher.Constraint("Horizontal", 1),
    Sketcher.Constraint("Radius", 0, 0.5),
    Sketcher.Constraint("DistanceX", 0, 3, -1, 1, 1.5),
    Sketcher.Constraint("DistanceY", -1, 1, 0, 3, 0.7),
    Sketcher.Constraint("DistanceY", -1, 1, 0, 1, 0.76),
])
pocket12 = body.newObject("PartDesign::Pocket", "Pocket011")
pocket12.Profile = sketch15
pocket12.Length = 2.9

# Sketch on XY plane
sketch16 = body.newObject("Sketcher::SketchObject", "Sketch015")
sketch16.AttachmentSupport = (doc.getObject("XY_Plane"), [""])
sketch16.MapMode = "FlatFace"
sketch16.AttachmentOffset = App.Placement(V(0, 0, 13), App.Rotation())
sketch16.addGeometry([
    Part.LineSegment(V(0, -0.8, 0), V(-1, -0.8, 0)),
    Part.ArcOfCircle(Part.Circle(V(-0.5, -0.7, 0), V(0, 0, 1), 0.5), math.radians(-173), math.radians(-7)),
], False)
sketch16.addConstraint([
    Sketcher.Constraint("Coincident", 0, 1, 1, 2),
    Sketcher.Constraint("Coincident", 1, 1, 0, 2),
    Sketcher.Constraint("Horizontal", 0),
    Sketcher.Constraint("Radius", 1, 0.5),
    Sketcher.Constraint("DistanceX", 1, 3, -1, 1, 0.5),
    Sketcher.Constraint("DistanceY", 1, 3, -1, 1, 0.7),
    Sketcher.Constraint("DistanceY", 0, 1, -1, 1, 0.76),
])
pocket13 = body.newObject("PartDesign::Pocket", "Pocket012")
pocket13.Profile = sketch16
pocket13.Length = 2.9

# Sketch on XY plane
sketch17 = body.newObject("Sketcher::SketchObject", "Sketch016")
sketch17.AttachmentSupport = (doc.getObject("XY_Plane"), [""])
sketch17.MapMode = "FlatFace"
sketch17.AttachmentOffset = App.Placement(V(0, 0, 13), App.Rotation())
sketch17.addGeometry([
    Part.LineSegment(V(2, -0.8, 0), V(1, -0.8, 0)),
    Part.ArcOfCircle(Part.Circle(V(1.5, -0.7, 0), V(0, 0, 1), 0.5), math.radians(-173), math.radians(-7)),
], False)
sketch17.addConstraint([
    Sketcher.Constraint("Coincident", 0, 1, 1, 2),
    Sketcher.Constraint("Coincident", 1, 1, 0, 2),
    Sketcher.Constraint("Horizontal", 0),
    Sketcher.Constraint("Radius", 1, 0.5),
    Sketcher.Constraint("DistanceX", -1, 1, 1, 3, 1.5),
    Sketcher.Constraint("DistanceY", 1, 3, -1, 1, 0.7),
    Sketcher.Constraint("DistanceY", 0, 1, -1, 1, 0.76),
])
pocket14 = body.newObject("PartDesign::Pocket", "Pocket013")
pocket14.Profile = sketch17
pocket14.Length = 2.9

# Sketch on XZ plane
sketch18 = body.newObject("Sketcher::SketchObject", "Sketch017")
sketch18.AttachmentSupport = (doc.getObject("XZ_Plane"), [""])
sketch18.MapMode = "FlatFace"
sketch18.AttachmentOffset = App.Placement(V(0, 0, 0.56), App.Rotation())
add_polygon(sketch18, [(-2.05, 12.5), (-2.55, 13), (-2.55, 13.5), (2.55, 13.5), (2.55, 13), (2.05, 12.5), (1.95, 12.5), (1.45, 13), (0.55, 13), (0.05, 12.5), (-0.05, 12.5), (-0.55, 13), (-1.45, 13), (-1.95, 12.5)])  # lines 0-13
sketch18.addConstraint([
    Sketcher.Constraint("Vertical", 1),
    Sketcher.Constraint("Horizontal", 2),
    Sketcher.Constraint("Vertical", 3),
    Sketcher.Constraint("Horizontal", 5),
    Sketcher.Constraint("Horizontal", 7),
    Sketcher.Constraint("Horizontal", 9),
    Sketcher.Constraint("Horizontal", 11),
    Sketcher.Constraint("Horizontal", 13),
    Sketcher.Constraint("Symmetric", 0, 2, 3, 2, -2),
    Sketcher.Constraint("Symmetric", 7, 2, 10, 2, -2),
    Sketcher.Constraint("Symmetric", 5, 2, 12, 2, -2),
    Sketcher.Constraint("Perpendicular", 0, 4),
    Sketcher.Constraint("Perpendicular", 4, 6),
    Sketcher.Constraint("Perpendicular", 6, 8),
    Sketcher.Constraint("Perpendicular", 8, 10),
    Sketcher.Constraint("Perpendicular", 10, 12),
    Sketcher.Constraint("Horizontal", 3, 2, 6, 2),
    Sketcher.Constraint("Horizontal", 5, 2, 8, 2),
    Sketcher.Constraint("Equal", 5, 9),
    Sketcher.Constraint("Equal", 7, 11),
    Sketcher.Constraint("DistanceX", 2, 1, 2, 2, 5.1),
    Sketcher.Constraint("DistanceX", 5, 2, 5, 1, 0.1),
    Sketcher.Constraint("DistanceX", 7, 2, 7, 1, 0.9),
    Sketcher.Constraint("DistanceY", 1, 1, 1, 2, 0.5),
    Sketcher.Constraint("DistanceY", -1, 1, 0, 2, 13.0),
])
pocket15 = body.newObject("PartDesign::Pocket", "Pocket014")
pocket15.Profile = sketch18
pocket15.Length = 1.1

# Sketch on YZ plane
sketch19 = body.newObject("Sketcher::SketchObject", "Sketch018")
sketch19.AttachmentSupport = (doc.getObject("YZ_Plane"), [""])
sketch19.MapMode = "FlatFace"
add_polygon(sketch19, [(0.54, 8), (0.54, 13), (0.39, 12.85), (0.39, 8.1), (-0.41, 8.1), (-0.41, 12.85), (-0.56, 13), (-0.56, 8)])  # lines 0-7
sketch19.addConstraint([
    Sketcher.Constraint("Vertical", 0),
    Sketcher.Constraint("Vertical", 2),
    Sketcher.Constraint("Horizontal", 3),
    Sketcher.Constraint("Vertical", 4),
    Sketcher.Constraint("Vertical", 6),
    Sketcher.Constraint("Horizontal", 7),
    Sketcher.Constraint("Perpendicular", 1, 5),
    Sketcher.Constraint("Horizontal", 1, 2, 4, 2),
    Sketcher.Constraint("Horizontal", 0, 2, 5, 2),
    Sketcher.Constraint("Equal", 1, 5),
    Sketcher.Constraint("DistanceY", 0, 1, 0, 2, 5.0),
    Sketcher.Constraint("DistanceX", 3, 2, 3, 1, 0.8),
    Sketcher.Constraint("DistanceX", 7, 1, 7, 2, 1.1),
    Sketcher.Constraint("DistanceY", -1, 1, 0, 2, 13.0),
    Sketcher.Constraint("DistanceY", 2, 2, 2, 1, 4.75),
    Sketcher.Constraint("DistanceX", -1, 1, 0, 2, 0.54),
])
pad4 = body.newObject("PartDesign::Pad", "Pad003")
pad4.Profile = sketch19
pad4.Length = 6
pad4.Midplane = True

# Sketch on XY plane
sketch20 = body.newObject("Sketcher::SketchObject", "Sketch019")
sketch20.AttachmentSupport = (doc.getObject("XY_Plane"), [""])
sketch20.MapMode = "FlatFace"
sketch20.addGeometry(Part.Circle(V(2, 0, 0), V(0, 0, 1), 0.4), False)
sketch20.addConstraint([
    Sketcher.Constraint("PointOnObject", 0, 3, -1),
    Sketcher.Constraint("Diameter", 0, 0.8),
    Sketcher.Constraint("DistanceX", -1, 1, 0, 3, 2.0),
])
pad5 = body.newObject("PartDesign::Pad", "Pad004")
pad5.Profile = sketch20
pad5.Length = 10
pad5.Reversed = True

# Sketch on XY plane
sketch21 = body.newObject("Sketcher::SketchObject", "Sketch020")
sketch21.AttachmentSupport = (doc.getObject("XY_Plane"), [""])
sketch21.MapMode = "FlatFace"
sketch21.addGeometry(Part.Circle(V(-2, 0, 0), V(0, 0, 1), 0.4), False)
sketch21.addConstraint([
    Sketcher.Constraint("PointOnObject", 0, 3, -1),
    Sketcher.Constraint("Diameter", 0, 0.8),
    Sketcher.Constraint("DistanceX", 0, 3, -1, 1, 2.0),
])
pad6 = body.newObject("PartDesign::Pad", "Pad005")
pad6.Profile = sketch21
pad6.Length = 10
pad6.Reversed = True

# Sketch on YZ plane
sketch22 = body.newObject("Sketcher::SketchObject", "Sketch021")
sketch22.AttachmentSupport = (doc.getObject("YZ_Plane"), [""])
sketch22.MapMode = "FlatFace"
add_polygon(sketch22, [(0.4, -10), (0.4, -9.2), (-0.4, -10)])  # lines 0-2
sketch22.addConstraint([
    Sketcher.Constraint("Vertical", 0),
    Sketcher.Constraint("Horizontal", 2),
    Sketcher.Constraint("Equal", 2, 0),
    Sketcher.Constraint("DistanceX", 2, 1, 2, 2, 0.8),
    Sketcher.Constraint("DistanceY", 1, 2, -1, 1, 10.0),
    Sketcher.Constraint("DistanceX", -1, 1, 0, 2, 0.4),
])
pocket16 = body.newObject("PartDesign::Pocket", "Pocket015")
pocket16.Profile = sketch22
pocket16.Length = 5
pocket16.Midplane = True

doc.recompute()
